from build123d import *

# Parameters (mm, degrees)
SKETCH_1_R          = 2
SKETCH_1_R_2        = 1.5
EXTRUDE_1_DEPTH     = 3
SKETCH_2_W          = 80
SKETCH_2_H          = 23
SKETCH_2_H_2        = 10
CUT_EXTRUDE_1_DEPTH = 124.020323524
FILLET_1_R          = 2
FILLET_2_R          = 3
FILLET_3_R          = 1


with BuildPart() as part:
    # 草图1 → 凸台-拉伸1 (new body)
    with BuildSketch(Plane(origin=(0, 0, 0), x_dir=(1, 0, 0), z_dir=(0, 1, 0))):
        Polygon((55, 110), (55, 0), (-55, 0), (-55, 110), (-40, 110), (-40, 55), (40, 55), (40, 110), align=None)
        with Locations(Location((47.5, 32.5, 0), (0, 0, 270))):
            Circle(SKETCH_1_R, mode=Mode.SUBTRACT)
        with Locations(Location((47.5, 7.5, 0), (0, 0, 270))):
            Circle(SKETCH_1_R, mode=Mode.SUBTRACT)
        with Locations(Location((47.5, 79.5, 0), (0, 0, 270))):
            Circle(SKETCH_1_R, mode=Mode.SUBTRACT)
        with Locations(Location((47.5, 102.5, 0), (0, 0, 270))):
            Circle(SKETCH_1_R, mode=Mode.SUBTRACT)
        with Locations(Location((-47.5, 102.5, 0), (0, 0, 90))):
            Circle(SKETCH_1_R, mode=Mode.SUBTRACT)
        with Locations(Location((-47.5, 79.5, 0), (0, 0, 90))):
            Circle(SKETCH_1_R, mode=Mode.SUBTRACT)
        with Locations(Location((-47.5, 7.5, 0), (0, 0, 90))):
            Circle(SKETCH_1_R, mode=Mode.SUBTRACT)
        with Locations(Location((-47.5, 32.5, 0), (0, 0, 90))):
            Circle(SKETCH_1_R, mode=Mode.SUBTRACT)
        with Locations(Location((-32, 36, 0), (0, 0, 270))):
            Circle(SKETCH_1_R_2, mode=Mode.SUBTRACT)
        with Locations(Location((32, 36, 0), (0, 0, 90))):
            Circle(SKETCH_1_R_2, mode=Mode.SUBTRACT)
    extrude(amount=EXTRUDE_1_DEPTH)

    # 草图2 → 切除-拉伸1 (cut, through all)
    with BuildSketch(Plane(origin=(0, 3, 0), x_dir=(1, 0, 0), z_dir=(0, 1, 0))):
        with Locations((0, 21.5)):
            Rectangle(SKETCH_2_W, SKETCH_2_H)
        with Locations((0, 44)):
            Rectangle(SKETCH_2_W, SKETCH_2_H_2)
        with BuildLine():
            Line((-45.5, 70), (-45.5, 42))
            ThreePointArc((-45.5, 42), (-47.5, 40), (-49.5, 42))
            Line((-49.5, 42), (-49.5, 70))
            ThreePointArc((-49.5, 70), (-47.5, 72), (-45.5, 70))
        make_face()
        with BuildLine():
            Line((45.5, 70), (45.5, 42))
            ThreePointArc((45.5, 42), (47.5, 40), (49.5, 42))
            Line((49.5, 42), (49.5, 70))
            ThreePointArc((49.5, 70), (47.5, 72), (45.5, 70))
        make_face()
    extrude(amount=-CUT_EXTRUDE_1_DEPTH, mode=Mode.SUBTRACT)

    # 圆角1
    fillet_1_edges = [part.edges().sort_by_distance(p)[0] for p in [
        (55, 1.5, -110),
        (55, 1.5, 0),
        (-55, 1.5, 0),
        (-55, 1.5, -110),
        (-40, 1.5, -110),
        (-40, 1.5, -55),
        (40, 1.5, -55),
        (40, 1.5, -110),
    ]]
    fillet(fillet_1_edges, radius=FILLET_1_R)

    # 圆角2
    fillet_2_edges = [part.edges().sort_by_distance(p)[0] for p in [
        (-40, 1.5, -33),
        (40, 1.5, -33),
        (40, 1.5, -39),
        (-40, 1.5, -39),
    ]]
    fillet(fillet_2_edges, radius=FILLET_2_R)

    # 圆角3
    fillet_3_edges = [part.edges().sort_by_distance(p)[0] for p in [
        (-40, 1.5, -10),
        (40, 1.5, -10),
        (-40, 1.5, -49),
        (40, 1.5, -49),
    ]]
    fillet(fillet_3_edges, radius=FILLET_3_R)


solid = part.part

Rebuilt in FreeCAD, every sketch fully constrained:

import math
import FreeCAD as App
import Part
import Sketcher


def edges_at(feature, points):
    """Names of the edges that pass closest to the given points."""
    edges = feature.Shape.Edges
    near = lambda p: min(range(len(edges)), key=lambda i: edges[i].distToShape(Part.Vertex(*p))[0])
    return sorted({f"Edge{near(p) + 1}" for p in points})


def add_polygon(sketch, points):
    """Adds a closed chain of lines whose ends are joined by coincident constraints."""
    first, n = sketch.GeometryCount, len(points)
    for a, b in zip(points, points[1:] + points[:1]):
        sketch.addGeometry(Part.LineSegment(App.Vector(*a, 0), App.Vector(*b, 0)), False)
    for i in range(n):
        sketch.addConstraint(Sketcher.Constraint("Coincident", first + i, 2, first + (i + 1) % n, 1))

doc = App.newDocument("Part")
params = doc.addObject("Spreadsheet::Sheet", "Params")
for row, (alias, value) in enumerate([
    ("sketch1_diameter", "4 mm"),
    ("sketch1_diameter2", "3 mm"),
    ("sketch1_width", "15 mm"),
    ("sketch1_width2", "80 mm"),
    ("sketch1_height", "55 mm"),
    ("pad1_length", "3 mm"),
    ("sketch2_radius", "2 mm"),
    ("sketch2_width", "80 mm"),
    ("sketch2_height", "23 mm"),
    ("sketch2_height2", "10 mm"),
    ("sketch2_height3", "28 mm"),
    ("fillet_radius", "2 mm"),
    ("fillet2_radius", "3 mm"),
    ("fillet3_radius", "1 mm"),
], start=1):
    params.set(f"A{row}", alias)
    params.set(f"B{row}", "=" + value)
    params.setAlias(f"B{row}", alias)

body = doc.addObject("PartDesign::Body", "Body")

sketch1 = body.newObject("Sketcher::SketchObject", "Sketch")
sketch1.AttachmentSupport = (doc.getObject("XZ_Plane"), [""])
sketch1.MapMode = "FlatFace"
add_polygon(sketch1, [(55, 0), (55, -110), (40, -110), (40, -55), (-40, -55), (-40, -110), (-55, -110), (-55, 0)])
sketch1.addGeometry(Part.Circle(App.Vector(47.5, -7.5, 0), App.Vector(0, 0, 1), 2), False)
sketch1.addGeometry(Part.Circle(App.Vector(47.5, -32.5, 0), App.Vector(0, 0, 1), 2), False)
sketch1.addGeometry(Part.Circle(App.Vector(32, -36, 0), App.Vector(0, 0, 1), 1.5), False)
sketch1.addGeometry(Part.Circle(App.Vector(-47.5, -7.5, 0), App.Vector(0, 0, 1), 2), False)
sketch1.addGeometry(Part.Circle(App.Vector(-32, -36, 0), App.Vector(0, 0, 1), 1.5), False)
sketch1.addGeometry(Part.Circle(App.Vector(-47.5, -32.5, 0), App.Vector(0, 0, 1), 2), False)
sketch1.addGeometry(Part.Circle(App.Vector(47.5, -79.5, 0), App.Vector(0, 0, 1), 2), False)
sketch1.addGeometry(Part.Circle(App.Vector(47.5, -102.5, 0), App.Vector(0, 0, 1), 2), False)
sketch1.addGeometry(Part.Circle(App.Vector(-47.5, -79.5, 0), App.Vector(0, 0, 1), 2), False)
sketch1.addGeometry(Part.Circle(App.Vector(-47.5, -102.5, 0), App.Vector(0, 0, 1), 2), False)
sketch1.addConstraint([
    Sketcher.Constraint("Vertical", 0),
    Sketcher.Constraint("Horizontal", 1),
    Sketcher.Constraint("Vertical", 2),
    Sketcher.Constraint("Horizontal", 3),
    Sketcher.Constraint("Vertical", 4),
    Sketcher.Constraint("Horizontal", 5),
    Sketcher.Constraint("Vertical", 6),
    Sketcher.Constraint("Horizontal", 7),
    Sketcher.Constraint("Equal", 8, 9),
    Sketcher.Constraint("Equal", 9, 11),
    Sketcher.Constraint("Equal", 10, 12),
    Sketcher.Constraint("Equal", 11, 13),
    Sketcher.Constraint("Equal", 13, 14),
    Sketcher.Constraint("Equal", 14, 15),
    Sketcher.Constraint("Equal", 15, 16),
    Sketcher.Constraint("Equal", 16, 17),
    Sketcher.Constraint("Symmetric", 6, 2, 7, 2, -1, 1),
    Sketcher.Constraint("Symmetric", 8, 3, 11, 3, -2),
    Sketcher.Constraint("Symmetric", 10, 3, 12, 3, -2),
    Sketcher.Constraint("Symmetric", 9, 3, 13, 3, -2),
    Sketcher.Constraint("Symmetric", 14, 3, 16, 3, -2),
    Sketcher.Constraint("Symmetric", 15, 3, 17, 3, -2),
    Sketcher.Constraint("Symmetric", 1, 2, 4, 2, -2),
    Sketcher.Constraint("Vertical", 8, 3, 9, 3),
    Sketcher.Constraint("Vertical", 9, 3, 14, 3),
    Sketcher.Constraint("Vertical", 14, 3, 15, 3),
    Sketcher.Constraint("Equal", 7, 0),
    Sketcher.Constraint("Diameter", 8, 4.0),
    Sketcher.Constraint("Diameter", 10, 3.0),
    Sketcher.Constraint("DistanceX", 1, 2, 1, 1, 15.0),
    Sketcher.Constraint("DistanceX", 3, 2, 3, 1, 80.0),
    Sketcher.Constraint("DistanceY", 2, 1, 2, 2, 55.0),
    Sketcher.Constraint("DistanceX", -1, 1, 10, 3, 32.0),
    Sketcher.Constraint("DistanceY", 10, 3, -1, 1, 36.0),
    Sketcher.Constraint("DistanceY", 9, 3, 8, 3, 25.0),
    Sketcher.Constraint("DistanceX", 11, 3, 8, 3, 95.0),
    Sketcher.Constraint("DistanceY", 14, 3, 9, 3, 47.0),
    Sketcher.Constraint("DistanceY", 15, 3, 14, 3, 23.0),
    Sketcher.Constraint("DistanceY", 8, 3, -1, 1, 7.5),
])
sketch1.setExpression("Constraints[35]", "Params.sketch1_diameter")
sketch1.setExpression("Constraints[36]", "Params.sketch1_diameter2")
sketch1.setExpression("Constraints[37]", "Params.sketch1_width")
sketch1.setExpression("Constraints[38]", "Params.sketch1_width2")
sketch1.setExpression("Constraints[39]", "Params.sketch1_height")
pad1 = body.newObject("PartDesign::Pad", "Pad")
pad1.Profile = sketch1
pad1.setExpression("Length", "Params.pad1_length")
pad1.Reversed = True

sketch2 = body.newObject("Sketcher::SketchObject", "Sketch001")
sketch2.AttachmentSupport = (doc.getObject("XZ_Plane"), [""])
sketch2.MapMode = "FlatFace"
sketch2.AttachmentOffset = App.Placement(App.Vector(0, 0, -3), App.Rotation())
add_polygon(sketch2, [(-40, -33), (-40, -10), (40, -10), (40, -33)])
add_polygon(sketch2, [(-40, -49), (-40, -39), (40, -39), (40, -49)])
sketch2.addGeometry(Part.LineSegment(App.Vector(-45.5, -42, 0), App.Vector(-45.5, -70, 0)), False)
sketch2.addGeometry(Part.ArcOfCircle(Part.Circle(App.Vector(-47.5, -70, 0), App.Vector(0, 0, 1), 2), math.radians(180), math.radians(360)), False)
sketch2.addGeometry(Part.LineSegment(App.Vector(-49.5, -70, 0), App.Vector(-49.5, -42, 0)), False)
sketch2.addGeometry(Part.ArcOfCircle(Part.Circle(App.Vector(-47.5, -42, 0), App.Vector(0, 0, 1), 2), math.radians(0), math.radians(180)), False)
sketch2.addGeometry(Part.LineSegment(App.Vector(45.5, -70, 0), App.Vector(45.5, -42, 0)), False)
sketch2.addGeometry(Part.ArcOfCircle(Part.Circle(App.Vector(47.5, -42, 0), App.Vector(0, 0, 1), 2), math.radians(0), math.radians(180)), False)
sketch2.addGeometry(Part.LineSegment(App.Vector(49.5, -42, 0), App.Vector(49.5, -70, 0)), False)
sketch2.addGeometry(Part.ArcOfCircle(Part.Circle(App.Vector(47.5, -70, 0), App.Vector(0, 0, 1), 2), math.radians(180), math.radians(360)), False)
sketch2.addConstraint([
    Sketcher.Constraint("Tangent", 8, 2, 9, 2),
    Sketcher.Constraint("Tangent", 9, 1, 10, 1),
    Sketcher.Constraint("Tangent", 10, 2, 11, 2),
    Sketcher.Constraint("Tangent", 11, 1, 8, 1),
    Sketcher.Constraint("Tangent", 12, 2, 13, 2),
    Sketcher.Constraint("Tangent", 13, 1, 14, 1),
    Sketcher.Constraint("Tangent", 14, 2, 15, 2),
    Sketcher.Constraint("Tangent", 15, 1, 12, 1),
    Sketcher.Constraint("Vertical", 0),
    Sketcher.Constraint("Horizontal", 1),
    Sketcher.Constraint("Vertical", 2),
    Sketcher.Constraint("Horizontal", 3),
    Sketcher.Constraint("Vertical", 4),
    Sketcher.Constraint("Horizontal", 5),
    Sketcher.Constraint("Vertical", 6),
    Sketcher.Constraint("Horizontal", 7),
    Sketcher.Constraint("Vertical", 8),
    Sketcher.Constraint("Vertical", 10),
    Sketcher.Constraint("Vertical", 12),
    Sketcher.Constraint("Vertical", 14),
    Sketcher.Constraint("Equal", 11, 13),
    Sketcher.Constraint("Symmetric", 11, 3, 13, 3, -2),
    Sketcher.Constraint("Horizontal", 9, 3, 15, 3),
    Sketcher.Constraint("Vertical", 3, 2, 4, 2),
    Sketcher.Constraint("Vertical", 2, 2, 5, 2),
    Sketcher.Constraint("Radius", 9, 2.0),
    Sketcher.Constraint("DistanceX", 1, 1, 1, 2, 80.0),
    Sketcher.Constraint("DistanceY", 0, 1, 0, 2, 23.0),
    Sketcher.Constraint("DistanceY", 4, 1, 4, 2, 10.0),
    Sketcher.Constraint("DistanceY", 8, 2, 8, 1, 28.0),
    Sketcher.Constraint("DistanceY", 9, 3, -1, 1, 70.0),
    Sketcher.Constraint("DistanceX", 0, 2, -1, 1, 40.0),
    Sketcher.Constraint("DistanceY", 0, 2, -1, 1, 10.0),
    Sketcher.Constraint("DistanceY", 4, 2, -1, 1, 39.0),
    Sketcher.Constraint("DistanceX", 11, 3, 13, 3, 95.0),
])
sketch2.setExpression("Constraints[33]", "Params.sketch2_radius")
sketch2.setExpression("Constraints[34]", "Params.sketch2_width")
sketch2.setExpression("Constraints[35]", "Params.sketch2_height")
sketch2.setExpression("Constraints[36]", "Params.sketch2_height2")
sketch2.setExpression("Constraints[37]", "Params.sketch2_height3")
pocket1 = body.newObject("PartDesign::Pocket", "Pocket")
pocket1.Profile = sketch2
pocket1.Type = "ThroughAll"
pocket1.Reversed = True
doc.recompute()

fillet = body.newObject("PartDesign::Fillet", "Fillet")
fillet.Base = (pocket1, edges_at(pocket1, [
    (55, 1.5, -110),
    (55, 1.5, 0),
    (-55, 1.5, 0),
    (-55, 1.5, -110),
    (-40, 1.5, -110),
    (-40, 1.5, -55),
    (40, 1.5, -55),
    (40, 1.5, -110),
]))
fillet.setExpression("Radius", "Params.fillet_radius")
doc.recompute()

fillet2 = body.newObject("PartDesign::Fillet", "Fillet001")
fillet2.Base = (fillet, edges_at(fillet, [
    (-40, 1.5, -33),
    (40, 1.5, -33),
    (40, 1.5, -39),
    (-40, 1.5, -39),
]))
fillet2.setExpression("Radius", "Params.fillet2_radius")
doc.recompute()

fillet3 = body.newObject("PartDesign::Fillet", "Fillet002")
fillet3.Base = (fillet2, edges_at(fillet2, [
    (-40, 1.5, -10),
    (40, 1.5, -10),
    (-40, 1.5, -49),
    (40, 1.5, -49),
]))
fillet3.setExpression("Radius", "Params.fillet3_radius")

doc.recompute()
